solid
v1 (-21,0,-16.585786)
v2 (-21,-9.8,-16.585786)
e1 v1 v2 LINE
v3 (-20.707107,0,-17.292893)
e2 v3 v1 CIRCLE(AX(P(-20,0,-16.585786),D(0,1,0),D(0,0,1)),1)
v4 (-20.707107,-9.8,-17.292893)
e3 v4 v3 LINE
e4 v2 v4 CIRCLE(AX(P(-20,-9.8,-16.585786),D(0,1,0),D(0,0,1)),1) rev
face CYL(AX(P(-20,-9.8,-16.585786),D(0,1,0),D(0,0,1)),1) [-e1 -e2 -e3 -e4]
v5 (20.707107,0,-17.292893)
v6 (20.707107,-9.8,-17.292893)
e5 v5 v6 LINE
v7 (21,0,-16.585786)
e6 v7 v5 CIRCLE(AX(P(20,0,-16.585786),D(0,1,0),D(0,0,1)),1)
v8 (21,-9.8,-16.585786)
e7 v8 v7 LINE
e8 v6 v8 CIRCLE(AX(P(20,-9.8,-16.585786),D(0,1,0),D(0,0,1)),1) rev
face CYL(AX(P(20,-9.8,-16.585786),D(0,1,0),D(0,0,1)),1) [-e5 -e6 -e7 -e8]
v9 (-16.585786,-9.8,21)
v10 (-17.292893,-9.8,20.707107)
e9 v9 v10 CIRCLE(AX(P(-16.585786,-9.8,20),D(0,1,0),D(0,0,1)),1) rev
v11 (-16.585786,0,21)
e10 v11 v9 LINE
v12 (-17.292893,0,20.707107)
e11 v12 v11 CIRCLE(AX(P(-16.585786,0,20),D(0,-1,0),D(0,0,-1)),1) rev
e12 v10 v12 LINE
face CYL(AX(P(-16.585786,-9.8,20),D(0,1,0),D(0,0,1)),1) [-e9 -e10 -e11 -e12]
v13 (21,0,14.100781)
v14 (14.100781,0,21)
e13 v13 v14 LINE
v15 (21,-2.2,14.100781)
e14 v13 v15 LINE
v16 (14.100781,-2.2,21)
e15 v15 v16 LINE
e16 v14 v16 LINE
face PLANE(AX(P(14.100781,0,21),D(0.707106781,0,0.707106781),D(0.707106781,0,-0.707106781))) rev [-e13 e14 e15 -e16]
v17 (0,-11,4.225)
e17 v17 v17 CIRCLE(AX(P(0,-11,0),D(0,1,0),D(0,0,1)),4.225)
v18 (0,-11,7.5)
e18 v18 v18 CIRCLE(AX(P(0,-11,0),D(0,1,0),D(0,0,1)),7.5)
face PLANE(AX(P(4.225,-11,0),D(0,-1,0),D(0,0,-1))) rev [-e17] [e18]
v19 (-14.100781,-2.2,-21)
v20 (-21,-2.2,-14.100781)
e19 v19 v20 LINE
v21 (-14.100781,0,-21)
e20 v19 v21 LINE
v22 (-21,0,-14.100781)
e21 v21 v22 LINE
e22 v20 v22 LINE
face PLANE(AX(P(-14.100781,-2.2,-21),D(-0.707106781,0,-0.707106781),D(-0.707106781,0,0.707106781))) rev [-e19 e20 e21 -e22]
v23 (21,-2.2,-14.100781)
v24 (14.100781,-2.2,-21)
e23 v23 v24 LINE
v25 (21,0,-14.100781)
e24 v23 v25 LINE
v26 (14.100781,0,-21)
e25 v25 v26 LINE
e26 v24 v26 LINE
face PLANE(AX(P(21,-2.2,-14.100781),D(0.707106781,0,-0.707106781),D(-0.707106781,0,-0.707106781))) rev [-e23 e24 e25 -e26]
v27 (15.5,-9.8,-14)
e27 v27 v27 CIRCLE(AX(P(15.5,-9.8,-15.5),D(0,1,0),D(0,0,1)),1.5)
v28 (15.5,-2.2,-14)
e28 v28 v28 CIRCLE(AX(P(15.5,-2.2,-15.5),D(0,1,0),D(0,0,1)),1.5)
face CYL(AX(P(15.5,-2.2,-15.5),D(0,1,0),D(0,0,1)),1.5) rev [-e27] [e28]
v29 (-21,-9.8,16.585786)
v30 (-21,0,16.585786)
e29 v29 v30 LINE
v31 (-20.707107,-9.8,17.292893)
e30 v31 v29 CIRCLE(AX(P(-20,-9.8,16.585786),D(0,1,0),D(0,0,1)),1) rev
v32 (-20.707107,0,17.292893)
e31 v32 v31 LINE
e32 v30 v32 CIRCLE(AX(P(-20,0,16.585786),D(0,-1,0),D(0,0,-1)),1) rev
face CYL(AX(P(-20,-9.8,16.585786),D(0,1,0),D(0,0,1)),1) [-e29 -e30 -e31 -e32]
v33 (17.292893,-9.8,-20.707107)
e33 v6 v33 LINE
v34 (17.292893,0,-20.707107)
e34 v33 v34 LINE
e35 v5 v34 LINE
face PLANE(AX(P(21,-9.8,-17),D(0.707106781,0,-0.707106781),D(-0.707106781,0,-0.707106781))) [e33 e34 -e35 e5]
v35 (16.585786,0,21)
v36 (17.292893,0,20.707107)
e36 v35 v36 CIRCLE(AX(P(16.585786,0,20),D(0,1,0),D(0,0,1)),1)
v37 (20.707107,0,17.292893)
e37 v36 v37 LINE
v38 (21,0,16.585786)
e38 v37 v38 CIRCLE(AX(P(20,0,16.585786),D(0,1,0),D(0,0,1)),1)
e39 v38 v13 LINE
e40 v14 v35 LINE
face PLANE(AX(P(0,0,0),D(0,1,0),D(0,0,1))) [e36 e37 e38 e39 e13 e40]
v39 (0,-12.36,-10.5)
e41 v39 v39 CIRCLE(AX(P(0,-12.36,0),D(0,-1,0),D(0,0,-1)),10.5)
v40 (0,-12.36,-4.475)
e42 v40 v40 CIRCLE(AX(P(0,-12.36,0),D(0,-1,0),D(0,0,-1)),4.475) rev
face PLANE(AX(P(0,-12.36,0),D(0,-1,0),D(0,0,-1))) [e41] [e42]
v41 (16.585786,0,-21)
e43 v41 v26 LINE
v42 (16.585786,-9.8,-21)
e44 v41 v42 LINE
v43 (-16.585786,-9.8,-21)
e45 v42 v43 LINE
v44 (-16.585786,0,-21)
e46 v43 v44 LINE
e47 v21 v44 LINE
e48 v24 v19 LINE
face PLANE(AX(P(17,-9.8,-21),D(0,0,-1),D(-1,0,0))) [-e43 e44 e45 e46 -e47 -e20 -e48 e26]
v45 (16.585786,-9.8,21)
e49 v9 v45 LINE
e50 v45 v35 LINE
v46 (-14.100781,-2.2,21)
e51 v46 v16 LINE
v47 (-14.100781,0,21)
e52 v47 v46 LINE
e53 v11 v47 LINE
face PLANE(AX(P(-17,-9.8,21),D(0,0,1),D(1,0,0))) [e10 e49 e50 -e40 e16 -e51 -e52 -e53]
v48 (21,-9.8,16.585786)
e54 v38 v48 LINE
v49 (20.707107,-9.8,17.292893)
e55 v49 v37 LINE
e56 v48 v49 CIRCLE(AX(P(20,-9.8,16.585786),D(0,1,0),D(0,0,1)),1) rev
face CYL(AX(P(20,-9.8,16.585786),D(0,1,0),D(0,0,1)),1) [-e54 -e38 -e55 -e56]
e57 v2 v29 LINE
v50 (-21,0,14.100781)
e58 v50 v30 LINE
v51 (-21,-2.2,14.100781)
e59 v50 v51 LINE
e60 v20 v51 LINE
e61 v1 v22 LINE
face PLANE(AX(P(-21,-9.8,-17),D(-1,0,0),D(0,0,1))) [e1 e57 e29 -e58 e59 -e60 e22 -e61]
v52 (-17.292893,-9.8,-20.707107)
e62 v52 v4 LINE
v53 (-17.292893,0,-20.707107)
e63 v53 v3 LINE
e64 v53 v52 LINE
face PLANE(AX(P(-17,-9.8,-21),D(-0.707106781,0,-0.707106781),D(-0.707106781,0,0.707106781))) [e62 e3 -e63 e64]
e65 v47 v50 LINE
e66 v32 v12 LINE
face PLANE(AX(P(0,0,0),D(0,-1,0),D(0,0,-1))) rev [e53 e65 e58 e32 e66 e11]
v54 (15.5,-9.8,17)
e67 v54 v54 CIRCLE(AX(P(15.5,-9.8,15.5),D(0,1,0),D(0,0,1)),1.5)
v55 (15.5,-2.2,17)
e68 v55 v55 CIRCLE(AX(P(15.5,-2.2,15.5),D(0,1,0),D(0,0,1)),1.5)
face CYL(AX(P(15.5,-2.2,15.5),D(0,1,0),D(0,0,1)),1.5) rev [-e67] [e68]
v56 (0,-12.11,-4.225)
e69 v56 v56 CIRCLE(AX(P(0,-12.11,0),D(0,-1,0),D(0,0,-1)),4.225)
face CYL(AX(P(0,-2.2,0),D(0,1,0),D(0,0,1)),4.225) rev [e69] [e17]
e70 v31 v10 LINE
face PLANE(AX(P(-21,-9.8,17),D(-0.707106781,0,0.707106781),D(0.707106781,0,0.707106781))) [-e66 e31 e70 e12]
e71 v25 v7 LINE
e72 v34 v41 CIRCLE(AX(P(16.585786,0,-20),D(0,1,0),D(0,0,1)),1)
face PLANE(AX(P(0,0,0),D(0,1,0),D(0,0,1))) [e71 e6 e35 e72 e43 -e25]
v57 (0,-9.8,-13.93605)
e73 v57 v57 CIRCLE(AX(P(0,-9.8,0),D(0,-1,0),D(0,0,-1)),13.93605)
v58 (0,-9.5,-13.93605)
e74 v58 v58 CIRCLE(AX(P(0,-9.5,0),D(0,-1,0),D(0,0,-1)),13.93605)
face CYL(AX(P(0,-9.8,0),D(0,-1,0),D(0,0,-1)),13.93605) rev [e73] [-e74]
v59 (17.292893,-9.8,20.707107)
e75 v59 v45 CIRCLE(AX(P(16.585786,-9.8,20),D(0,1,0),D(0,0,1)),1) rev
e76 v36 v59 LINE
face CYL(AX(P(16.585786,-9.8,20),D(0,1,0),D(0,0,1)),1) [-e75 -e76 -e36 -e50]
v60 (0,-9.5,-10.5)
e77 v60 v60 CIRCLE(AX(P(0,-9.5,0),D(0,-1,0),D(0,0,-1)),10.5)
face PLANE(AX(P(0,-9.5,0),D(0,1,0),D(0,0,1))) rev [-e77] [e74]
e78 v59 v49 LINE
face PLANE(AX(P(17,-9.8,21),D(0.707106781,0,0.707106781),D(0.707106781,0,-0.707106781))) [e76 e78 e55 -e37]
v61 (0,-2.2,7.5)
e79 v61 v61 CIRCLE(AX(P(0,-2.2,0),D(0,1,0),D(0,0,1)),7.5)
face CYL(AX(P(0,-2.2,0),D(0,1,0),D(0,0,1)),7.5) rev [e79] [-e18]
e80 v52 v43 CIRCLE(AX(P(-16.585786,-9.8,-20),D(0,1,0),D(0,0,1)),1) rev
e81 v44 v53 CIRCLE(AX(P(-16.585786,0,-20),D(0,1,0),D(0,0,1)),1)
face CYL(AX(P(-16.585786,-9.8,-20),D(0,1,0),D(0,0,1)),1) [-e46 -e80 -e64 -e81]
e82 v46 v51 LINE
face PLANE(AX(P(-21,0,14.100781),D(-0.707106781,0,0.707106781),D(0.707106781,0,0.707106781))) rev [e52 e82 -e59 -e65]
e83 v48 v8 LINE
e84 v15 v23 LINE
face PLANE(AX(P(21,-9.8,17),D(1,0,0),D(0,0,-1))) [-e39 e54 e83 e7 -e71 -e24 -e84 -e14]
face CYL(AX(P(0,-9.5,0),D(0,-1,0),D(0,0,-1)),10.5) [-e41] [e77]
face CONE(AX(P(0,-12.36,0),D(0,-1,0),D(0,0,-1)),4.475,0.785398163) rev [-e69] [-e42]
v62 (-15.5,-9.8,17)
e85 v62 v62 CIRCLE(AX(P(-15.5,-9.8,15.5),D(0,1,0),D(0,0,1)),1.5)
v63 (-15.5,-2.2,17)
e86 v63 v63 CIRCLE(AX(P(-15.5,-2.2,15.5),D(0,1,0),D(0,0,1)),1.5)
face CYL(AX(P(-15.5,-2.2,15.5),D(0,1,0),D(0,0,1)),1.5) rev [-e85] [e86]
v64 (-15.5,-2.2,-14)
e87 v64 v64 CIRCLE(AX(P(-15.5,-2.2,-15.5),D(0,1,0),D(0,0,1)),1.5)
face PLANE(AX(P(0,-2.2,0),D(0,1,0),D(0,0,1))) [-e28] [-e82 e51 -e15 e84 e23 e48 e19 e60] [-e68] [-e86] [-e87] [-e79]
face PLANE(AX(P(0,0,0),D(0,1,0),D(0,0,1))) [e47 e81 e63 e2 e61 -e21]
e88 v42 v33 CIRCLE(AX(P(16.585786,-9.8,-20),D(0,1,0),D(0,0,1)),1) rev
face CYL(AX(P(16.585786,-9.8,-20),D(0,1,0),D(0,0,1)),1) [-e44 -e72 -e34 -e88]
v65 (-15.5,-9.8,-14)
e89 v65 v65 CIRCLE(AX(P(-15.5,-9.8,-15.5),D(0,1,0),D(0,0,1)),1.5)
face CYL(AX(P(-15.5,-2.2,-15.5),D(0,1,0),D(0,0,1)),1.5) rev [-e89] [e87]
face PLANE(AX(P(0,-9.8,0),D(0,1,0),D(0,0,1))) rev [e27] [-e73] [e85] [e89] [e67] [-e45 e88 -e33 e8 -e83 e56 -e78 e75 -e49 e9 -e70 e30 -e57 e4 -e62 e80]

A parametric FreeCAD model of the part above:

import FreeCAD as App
import Part
import Sketcher


def edges_at(feature, points):
    """Names of the edges that pass closest to the given points."""
    edges = feature.Shape.Edges
    near = lambda p: min(range(len(edges)), key=lambda i: edges[i].distToShape(Part.Vertex(*p))[0])
    return sorted({f"Edge{near(p) + 1}" for p in points})

doc = App.newDocument("Part")
body = doc.addObject("PartDesign::Body", "Body")

sketch1 = body.newObject("Sketcher::SketchObject", "Sketch")
sketch1.AttachmentSupport = (doc.getObject("XZ_Plane"), [""])
sketch1.MapMode = "FlatFace"
sketch1.addGeometry([
    Part.LineSegment(App.Vector(-21, -17, 0), App.Vector(-21, 17, 0)),
    Part.LineSegment(App.Vector(-21, 17, 0), App.Vector(-17, 21, 0)),
    Part.LineSegment(App.Vector(-17, 21, 0), App.Vector(17, 21, 0)),
    Part.LineSegment(App.Vector(17, 21, 0), App.Vector(21, 17, 0)),
    Part.LineSegment(App.Vector(21, 17, 0), App.Vector(21, -17, 0)),
    Part.LineSegment(App.Vector(21, -17, 0), App.Vector(17, -21, 0)),
    Part.LineSegment(App.Vector(17, -21, 0), App.Vector(-17, -21, 0)),
    Part.LineSegment(App.Vector(-17, -21, 0), App.Vector(-21, -17, 0)),
], False)
sketch1.addConstraint([
    Sketcher.Constraint("Coincident", 0, 2, 1, 1),
    Sketcher.Constraint("Coincident", 1, 2, 2, 1),
    Sketcher.Constraint("Coincident", 2, 2, 3, 1),
    Sketcher.Constraint("Coincident", 3, 2, 4, 1),
    Sketcher.Constraint("Coincident", 4, 2, 5, 1),
    Sketcher.Constraint("Coincident", 5, 2, 6, 1),
    Sketcher.Constraint("Coincident", 6, 2, 7, 1),
    Sketcher.Constraint("Coincident", 7, 2, 0, 1),
    Sketcher.Constraint("Vertical", 0),
    Sketcher.Constraint("Horizontal", 2),
    Sketcher.Constraint("Vertical", 4),
    Sketcher.Constraint("Horizontal", 6),
    Sketcher.Constraint("Symmetric", 0, 2, 4, 2, -1, 1),
    Sketcher.Constraint("Symmetric", 1, 2, 5, 2, -1, 1),
    Sketcher.Constraint("Perpendicular", 1, 3),
    Sketcher.Constraint("Perpendicular", 5, 7),
    Sketcher.Constraint("Horizontal", 0, 2, 3, 2),
    Sketcher.Constraint("Horizontal", 4, 2, 7, 2),
    Sketcher.Constraint("Vertical", 2, 2, 5, 2),
    Sketcher.Constraint("Equal", 6, 0),
    Sketcher.Constraint("DistanceX", 2, 1, 2, 2, 34.0),
    Sketcher.Constraint("DistanceX", 0, 2, -1, 1, 21.0),
])
pad1 = body.newObject("PartDesign::Pad", "Pad")
pad1.Profile = sketch1
pad1.Length = 9.8

sketch2 = body.newObject("Sketcher::SketchObject", "Sketch001")
sketch2.AttachmentSupport = (doc.getObject("XZ_Plane"), [""])
sketch2.MapMode = "FlatFace"
sketch2.addGeometry([
    Part.LineSegment(App.Vector(14, -21, 0), App.Vector(-14, -21, 0)),
    Part.LineSegment(App.Vector(-14, -21, 0), App.Vector(-21, -14, 0)),
    Part.LineSegment(App.Vector(-21, -14, 0), App.Vector(-21, 17, 0)),
    Part.LineSegment(App.Vector(-21, 17, 0), App.Vector(-17, 21, 0)),
    Part.LineSegment(App.Vector(-17, 21, 0), App.Vector(17, 21, 0)),
    Part.LineSegment(App.Vector(17, 21, 0), App.Vector(21, 17, 0)),
    Part.LineSegment(App.Vector(21, 17, 0), App.Vector(21, -14, 0)),
    Part.LineSegment(App.Vector(21, -14, 0), App.Vector(14, -21, 0)),
], False)
sketch2.addConstraint([
    Sketcher.Constraint("Coincident", 0, 2, 1, 1),
    Sketcher.Constraint("Coincident", 1, 2, 2, 1),
    Sketcher.Constraint("Coincident", 2, 2, 3, 1),
    Sketcher.Constraint("Coincident", 3, 2, 4, 1),
    Sketcher.Constraint("Coincident", 4, 2, 5, 1),
    Sketcher.Constraint("Coincident", 5, 2, 6, 1),
    Sketcher.Constraint("Coincident", 6, 2, 7, 1),
    Sketcher.Constraint("Coincident", 7, 2, 0, 1),
    Sketcher.Constraint("Horizontal", 0),
    Sketcher.Constraint("Vertical", 2),
    Sketcher.Constraint("Horizontal", 4),
    Sketcher.Constraint("Vertical", 6),
    Sketcher.Constraint("Symmetric", 2, 2, 5, 2, -2),
    Sketcher.Constraint("Perpendicular", 1, 3),
    Sketcher.Constraint("Perpendicular", 3, 5),
    Sketcher.Constraint("Perpendicular", 5, 7),
    Sketcher.Constraint("Horizontal", 1, 2, 6, 2),
    Sketcher.Constraint("Equal", 3, 5),
    Sketcher.Constraint("DistanceX", 4, 1, 4, 2, 34.0),
    Sketcher.Constraint("DistanceY", 0, 2, -1, 1, 21.0),
    Sketcher.Constraint("DistanceX", 1, 2, -1, 1, 21.0),
    Sketcher.Constraint("DistanceY", -1, 1, 2, 2, 17.0),
    Sketcher.Constraint("DistanceX", 0, 2, 0, 1, 28.201561),
])
pocket1 = body.newObject("PartDesign::Pocket", "Pocket")
pocket1.Profile = sketch2
pocket1.Length = 2.2
pocket1.Reversed = True

sketch3 = body.newObject("Sketcher::SketchObject", "Sketch002")
sketch3.AttachmentSupport = (doc.getObject("XZ_Plane"), [""])
sketch3.MapMode = "FlatFace"
sketch3.AttachmentOffset = App.Placement(App.Vector(0, 0, 2.2), App.Rotation())
sketch3.addGeometry([
    Part.LineSegment(App.Vector(21, 14.1, 0), App.Vector(14.1, 21, 0)),
    Part.LineSegment(App.Vector(14.1, 21, 0), App.Vector(17, 21, 0)),
    Part.LineSegment(App.Vector(17, 21, 0), App.Vector(21, 17, 0)),
    Part.LineSegment(App.Vector(21, 17, 0), App.Vector(21, 14.1, 0)),
], False)
sketch3.addConstraint([
    Sketcher.Constraint("Coincident", 0, 2, 1, 1),
    Sketcher.Constraint("Coincident", 1, 2, 2, 1),
    Sketcher.Constraint("Coincident", 2, 2, 3, 1),
    Sketcher.Constraint("Coincident", 3, 2, 0, 1),
    Sketcher.Constraint("Horizontal", 1),
    Sketcher.Constraint("Vertical", 3),
    Sketcher.Constraint("Parallel", 0, 2),
    Sketcher.Constraint("Equal", 1, 3),
    Sketcher.Constraint("DistanceY", -1, 1, 0, 2, 21.0),
    Sketcher.Constraint("DistanceX", -1, 1, 1, 2, 17.0),
    Sketcher.Constraint("DistanceX", -1, 1, 2, 2, 21.0),
    Sketcher.Constraint("DistanceX", 1, 1, 1, 2, 2.899219),
])
pad2 = body.newObject("PartDesign::Pad", "Pad001")
pad2.Profile = sketch3
pad2.Length = 2.2
pad2.Reversed = True

sketch4 = body.newObject("Sketcher::SketchObject", "Sketch003")
sketch4.AttachmentSupport = (doc.getObject("XZ_Plane"), [""])
sketch4.MapMode = "FlatFace"
sketch4.AttachmentOffset = App.Placement(App.Vector(0, 0, 2.2), App.Rotation())
sketch4.addGeometry([
    Part.LineSegment(App.Vector(-21, 17, 0), App.Vector(-17, 21, 0)),
    Part.LineSegment(App.Vector(-17, 21, 0), App.Vector(-14.1, 21, 0)),
    Part.LineSegment(App.Vector(-14.1, 21, 0), App.Vector(-21, 14.1, 0)),
    Part.LineSegment(App.Vector(-21, 14.1, 0), App.Vector(-21, 17, 0)),
], False)
sketch4.addConstraint([
    Sketcher.Constraint("Coincident", 0, 2, 1, 1),
    Sketcher.Constraint("Coincident", 1, 2, 2, 1),
    Sketcher.Constraint("Coincident", 2, 2, 3, 1),
    Sketcher.Constraint("Coincident", 3, 2, 0, 1),
    Sketcher.Constraint("Horizontal", 1),
    Sketcher.Constraint("Vertical", 3),
    Sketcher.Constraint("Parallel", 0, 2),
    Sketcher.Constraint("Equal", 1, 3),
    Sketcher.Constraint("DistanceX", 0, 2, -1, 1, 17.0),
    Sketcher.Constraint("DistanceY", -1, 1, 0, 2, 21.0),
    Sketcher.Constraint("DistanceX", 2, 2, -1, 1, 21.0),
    Sketcher.Constraint("DistanceX", 1, 1, 1, 2, 2.899219),
])
pad3 = body.newObject("PartDesign::Pad", "Pad002")
pad3.Profile = sketch4
pad3.Length = 2.2
pad3.Reversed = True

sketch5 = body.newObject("Sketcher::SketchObject", "Sketch004")
sketch5.AttachmentSupport = (doc.getObject("XZ_Plane"), [""])
sketch5.MapMode = "FlatFace"
sketch5.AttachmentOffset = App.Placement(App.Vector(0, 0, 9.8), App.Rotation())
sketch5.addGeometry(Part.Circle(App.Vector(0, 0, 0), App.Vector(0, 0, 1), 14), False)
sketch5.addConstraint([
    Sketcher.Constraint("Coincident", 0, 3, -1, 1),
    Sketcher.Constraint("Diameter", 0, 27.8721),
])
doc.recompute()
hole = body.newObject("PartDesign::Hole", "Hole")
hole.Profile = sketch5
hole.ThreadType = "None"
hole.Diameter = 27.8721
hole.DepthType = "Dimension"
hole.Depth = 0.3
hole.DrillPoint = "Flat"

sketch6 = body.newObject("Sketcher::SketchObject", "Sketch005")
sketch6.AttachmentSupport = (doc.getObject("XY_Plane"), [""])
sketch6.MapMode = "FlatFace"
sketch6.addGeometry([
    Part.LineSegment(App.Vector(0, -9.5, 0), App.Vector(0, -12.4, 0)),
    Part.LineSegment(App.Vector(0, -12.4, 0), App.Vector(10.5, -12.4, 0)),
    Part.LineSegment(App.Vector(10.5, -12.4, 0), App.Vector(10.5, -9.5, 0)),
    Part.LineSegment(App.Vector(10.5, -9.5, 0), App.Vector(0, -9.5, 0)),
], False)
sketch6.addConstraint([
    Sketcher.Constraint("Coincident", 0, 2, 1, 1),
    Sketcher.Constraint("Coincident", 1, 2, 2, 1),
    Sketcher.Constraint("Coincident", 2, 2, 3, 1),
    Sketcher.Constraint("Coincident", 3, 2, 0, 1),
    Sketcher.Constraint("Vertical", 0),
    Sketcher.Constraint("Horizontal", 1),
    Sketcher.Constraint("Vertical", 2),
    Sketcher.Constraint("Horizontal", 3),
    Sketcher.Constraint("PointOnObject", 0, 2, -2),
    Sketcher.Constraint("DistanceX", 1, 1, 1, 2, 10.5),
    Sketcher.Constraint("DistanceY", 0, 2, 0, 1, 2.86),
    Sketcher.Constraint("DistanceY", 2, 2, -1, 1, 9.5),
])
revolution = body.newObject("PartDesign::Revolution", "Revolution")
revolution.Profile = sketch6
revolution.ReferenceAxis = (sketch6, ["V_Axis"])
revolution.Angle = 360

sketch7 = body.newObject("Sketcher::SketchObject", "Sketch006")
sketch7.AttachmentSupport = (doc.getObject("XZ_Plane"), [""])
sketch7.MapMode = "FlatFace"
sketch7.AttachmentOffset = App.Placement(App.Vector(0, 0, 2.2), App.Rotation())
sketch7.addGeometry(Part.Circle(App.Vector(0, 0, 0), App.Vector(0, 0, 1), 4.2), False)
sketch7.addConstraint([
    Sketcher.Constraint("Coincident", 0, 3, -1, 1),
    Sketcher.Constraint("Diameter", 0, 8.45),
])
doc.recompute()
hole2 = body.newObject("PartDesign::Hole", "Hole001")
hole2.Profile = sketch7
hole2.ThreadType = "None"
hole2.Diameter = 8.45
hole2.DepthType = "ThroughAll"
hole2.HoleCutType = "Counterbore"
hole2.HoleCutDiameter = 15
hole2.HoleCutDepth = 8.8
hole2.Reversed = True

sketch8 = body.newObject("Sketcher::SketchObject", "Sketch007")
sketch8.AttachmentSupport = (doc.getObject("XZ_Plane"), [""])
sketch8.MapMode = "FlatFace"
sketch8.AttachmentOffset = App.Placement(App.Vector(0, 0, 2.2), App.Rotation())
sketch8.addGeometry([
    Part.Circle(App.Vector(15.5, 15.5, 0), App.Vector(0, 0, 1), 1.5),
    Part.Circle(App.Vector(15.5, -15.5, 0), App.Vector(0, 0, 1), 1.5),
    Part.Circle(App.Vector(-15.5, 15.5, 0), App.Vector(0, 0, 1), 1.5),
    Part.Circle(App.Vector(-15.5, -15.5, 0), App.Vector(0, 0, 1), 1.5),
], False)
sketch8.addConstraint([
    Sketcher.Constraint("Equal", 0, 1),
    Sketcher.Constraint("Equal", 1, 2),
    Sketcher.Constraint("Equal", 2, 3),
    Sketcher.Constraint("Symmetric", 1, 3, 2, 3, -1, 1),
    Sketcher.Constraint("Symmetric", 0, 3, 3, 3, -1, 1),
    Sketcher.Constraint("Symmetric", 0, 3, 2, 3, -2),
    Sketcher.Constraint("Diameter", 0, 3.0),
    Sketcher.Constraint("DistanceY", 1, 3, 0, 3, 31.0),
    Sketcher.Constraint("DistanceX", 2, 3, 0, 3, 31.0),
])
doc.recompute()
hole3 = body.newObject("PartDesign::Hole", "Hole002")
hole3.Profile = sketch8
hole3.ThreadType = "None"
hole3.Diameter = 3
hole3.DepthType = "Dimension"
hole3.Depth = 10.16
hole3.DrillPoint = "Flat"
hole3.Reversed = True
doc.recompute()

chamfer = body.newObject("PartDesign::Chamfer", "Chamfer")
chamfer.Base = (hole3, edges_at(hole3, [(4.225, -12.36, 0)]))
chamfer.Size = 0.25
doc.recompute()

fillet = body.newObject("PartDesign::Fillet", "Fillet")
fillet.Base = (chamfer, edges_at(chamfer, [
    (-17, -4.9, -21),
    (17, -4.9, -21),
    (21, -4.9, -17),
    (21, -4.9, 17),
    (17, -4.9, 21),
    (-17, -4.9, 21),
    (-21, -4.9, 17),
    (-21, -4.9, -17),
]))
fillet.Radius = 1

doc.recompute()
